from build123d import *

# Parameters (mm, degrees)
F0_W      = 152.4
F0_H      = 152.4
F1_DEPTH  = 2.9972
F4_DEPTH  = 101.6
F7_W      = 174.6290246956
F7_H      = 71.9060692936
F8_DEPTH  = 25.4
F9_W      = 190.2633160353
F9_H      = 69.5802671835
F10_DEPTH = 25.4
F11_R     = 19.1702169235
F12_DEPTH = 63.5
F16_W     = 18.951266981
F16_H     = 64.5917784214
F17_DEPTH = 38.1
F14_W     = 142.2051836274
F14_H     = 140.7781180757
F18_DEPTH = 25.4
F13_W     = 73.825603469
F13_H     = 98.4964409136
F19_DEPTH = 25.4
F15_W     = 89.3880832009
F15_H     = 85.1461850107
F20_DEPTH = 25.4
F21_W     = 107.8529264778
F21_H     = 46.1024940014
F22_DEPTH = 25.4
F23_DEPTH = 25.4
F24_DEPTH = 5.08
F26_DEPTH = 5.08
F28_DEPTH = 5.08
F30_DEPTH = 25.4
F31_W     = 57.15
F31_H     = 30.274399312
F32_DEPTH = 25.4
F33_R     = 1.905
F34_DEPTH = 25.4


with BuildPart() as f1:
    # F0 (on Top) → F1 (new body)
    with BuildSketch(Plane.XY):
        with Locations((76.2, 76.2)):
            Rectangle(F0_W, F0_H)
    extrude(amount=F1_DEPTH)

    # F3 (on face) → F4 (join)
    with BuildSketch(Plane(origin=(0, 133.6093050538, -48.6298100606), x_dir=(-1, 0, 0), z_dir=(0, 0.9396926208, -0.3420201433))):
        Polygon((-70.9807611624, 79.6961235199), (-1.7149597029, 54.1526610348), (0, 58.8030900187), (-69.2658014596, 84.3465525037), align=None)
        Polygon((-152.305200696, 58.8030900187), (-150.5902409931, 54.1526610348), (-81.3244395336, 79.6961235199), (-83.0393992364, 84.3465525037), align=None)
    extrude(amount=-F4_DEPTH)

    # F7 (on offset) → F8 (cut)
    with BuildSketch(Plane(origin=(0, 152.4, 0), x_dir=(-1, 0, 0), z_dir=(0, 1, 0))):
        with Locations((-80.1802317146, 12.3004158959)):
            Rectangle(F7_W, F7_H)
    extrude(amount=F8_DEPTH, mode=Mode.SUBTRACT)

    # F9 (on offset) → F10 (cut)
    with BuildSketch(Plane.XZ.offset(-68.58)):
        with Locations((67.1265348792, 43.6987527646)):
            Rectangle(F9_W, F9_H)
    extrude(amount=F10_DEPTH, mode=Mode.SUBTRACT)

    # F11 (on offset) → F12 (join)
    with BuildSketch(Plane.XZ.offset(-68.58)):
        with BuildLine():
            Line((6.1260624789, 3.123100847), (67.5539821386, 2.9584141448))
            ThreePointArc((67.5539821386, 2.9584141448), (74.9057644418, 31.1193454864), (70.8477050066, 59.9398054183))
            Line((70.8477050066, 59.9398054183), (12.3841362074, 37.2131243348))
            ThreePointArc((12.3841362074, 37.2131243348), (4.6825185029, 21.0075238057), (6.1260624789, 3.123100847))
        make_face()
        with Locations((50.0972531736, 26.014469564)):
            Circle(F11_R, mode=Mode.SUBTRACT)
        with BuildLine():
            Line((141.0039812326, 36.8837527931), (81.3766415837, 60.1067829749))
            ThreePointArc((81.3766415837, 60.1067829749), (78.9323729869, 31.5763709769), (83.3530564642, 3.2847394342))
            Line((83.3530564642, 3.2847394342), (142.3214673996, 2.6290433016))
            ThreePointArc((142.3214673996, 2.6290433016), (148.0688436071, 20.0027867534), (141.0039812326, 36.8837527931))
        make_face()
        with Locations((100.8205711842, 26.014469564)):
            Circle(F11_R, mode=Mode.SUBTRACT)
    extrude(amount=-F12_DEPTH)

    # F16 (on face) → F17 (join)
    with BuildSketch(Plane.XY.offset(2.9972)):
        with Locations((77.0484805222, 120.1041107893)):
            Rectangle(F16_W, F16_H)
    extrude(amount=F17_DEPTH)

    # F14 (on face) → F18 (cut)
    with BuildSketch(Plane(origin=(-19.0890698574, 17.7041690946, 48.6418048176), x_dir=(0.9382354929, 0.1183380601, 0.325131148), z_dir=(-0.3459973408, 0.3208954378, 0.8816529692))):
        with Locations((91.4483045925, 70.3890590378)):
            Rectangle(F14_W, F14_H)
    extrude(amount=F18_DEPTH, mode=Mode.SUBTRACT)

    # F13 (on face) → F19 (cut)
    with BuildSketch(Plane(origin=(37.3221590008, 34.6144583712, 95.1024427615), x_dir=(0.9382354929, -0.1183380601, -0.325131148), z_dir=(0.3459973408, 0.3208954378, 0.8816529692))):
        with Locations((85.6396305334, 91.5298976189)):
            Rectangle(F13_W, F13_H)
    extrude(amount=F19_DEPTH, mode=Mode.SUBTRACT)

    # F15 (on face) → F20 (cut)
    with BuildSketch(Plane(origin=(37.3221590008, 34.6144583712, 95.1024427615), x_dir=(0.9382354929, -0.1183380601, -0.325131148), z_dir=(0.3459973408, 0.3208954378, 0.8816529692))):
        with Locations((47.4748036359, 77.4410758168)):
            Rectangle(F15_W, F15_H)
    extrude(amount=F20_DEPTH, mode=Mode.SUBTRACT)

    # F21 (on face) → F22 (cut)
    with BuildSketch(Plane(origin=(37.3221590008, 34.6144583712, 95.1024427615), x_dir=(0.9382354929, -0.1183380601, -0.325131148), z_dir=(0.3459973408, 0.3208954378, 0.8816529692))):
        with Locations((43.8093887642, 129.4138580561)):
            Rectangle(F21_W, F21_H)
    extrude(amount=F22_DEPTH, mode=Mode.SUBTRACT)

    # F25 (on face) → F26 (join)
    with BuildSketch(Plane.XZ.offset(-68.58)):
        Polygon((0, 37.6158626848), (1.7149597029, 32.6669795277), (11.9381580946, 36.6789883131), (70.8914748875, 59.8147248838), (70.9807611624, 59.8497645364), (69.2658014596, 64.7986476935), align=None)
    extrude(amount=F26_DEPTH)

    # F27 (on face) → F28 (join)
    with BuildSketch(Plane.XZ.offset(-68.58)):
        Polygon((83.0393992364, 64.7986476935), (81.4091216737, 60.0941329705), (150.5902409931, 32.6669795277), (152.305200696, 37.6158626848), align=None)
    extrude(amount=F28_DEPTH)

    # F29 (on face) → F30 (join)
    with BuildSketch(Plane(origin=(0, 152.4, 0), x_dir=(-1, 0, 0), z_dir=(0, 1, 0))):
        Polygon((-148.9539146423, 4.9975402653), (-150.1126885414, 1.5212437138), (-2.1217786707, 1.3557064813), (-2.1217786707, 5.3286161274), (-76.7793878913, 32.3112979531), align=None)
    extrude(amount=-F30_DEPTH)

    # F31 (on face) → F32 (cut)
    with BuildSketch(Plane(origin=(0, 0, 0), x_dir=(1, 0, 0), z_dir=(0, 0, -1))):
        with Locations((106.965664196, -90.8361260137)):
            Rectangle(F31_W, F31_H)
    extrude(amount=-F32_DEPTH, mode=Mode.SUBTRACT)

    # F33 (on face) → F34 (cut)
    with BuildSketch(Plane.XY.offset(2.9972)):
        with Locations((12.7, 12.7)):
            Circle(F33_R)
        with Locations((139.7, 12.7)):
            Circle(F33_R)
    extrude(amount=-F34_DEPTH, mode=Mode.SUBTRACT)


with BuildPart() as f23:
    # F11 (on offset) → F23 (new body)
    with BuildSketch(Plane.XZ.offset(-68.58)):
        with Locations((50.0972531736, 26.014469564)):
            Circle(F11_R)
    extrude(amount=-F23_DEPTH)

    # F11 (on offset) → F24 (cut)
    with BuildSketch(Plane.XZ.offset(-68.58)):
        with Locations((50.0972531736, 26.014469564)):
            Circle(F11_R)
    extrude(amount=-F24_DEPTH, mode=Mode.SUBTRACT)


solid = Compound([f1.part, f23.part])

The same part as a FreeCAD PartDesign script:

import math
import FreeCAD as App
import Part
import Sketcher
Q = App.Units.Quantity

doc = App.newDocument("Part")
body = doc.addObject("PartDesign::Body", "Body")

sketch1 = body.newObject("Sketcher::SketchObject", "Sketch")
sketch1.AttachmentSupport = (doc.getObject("XY_Plane"), [""])
sketch1.MapMode = "FlatFace"
sketch1.addGeometry([
    Part.LineSegment(App.Vector(0, 152, 0), App.Vector(0, 0, 0)),
    Part.LineSegment(App.Vector(0, 0, 0), App.Vector(152, 0, 0)),
    Part.LineSegment(App.Vector(152, 0, 0), App.Vector(152, 152, 0)),
    Part.LineSegment(App.Vector(152, 152, 0), App.Vector(0, 152, 0)),
], False)
sketch1.addConstraint([
    Sketcher.Constraint("Coincident", 0, 2, 1, 1),
    Sketcher.Constraint("Coincident", 1, 2, 2, 1),
    Sketcher.Constraint("Coincident", 2, 2, 3, 1),
    Sketcher.Constraint("Coincident", 3, 2, 0, 1),
    Sketcher.Constraint("Vertical", 0),
    Sketcher.Constraint("Horizontal", 1),
    Sketcher.Constraint("Vertical", 2),
    Sketcher.Constraint("Horizontal", 3),
    Sketcher.Constraint("Coincident", 0, 2, -1, 1),
    Sketcher.Constraint("Equal", 3, 0),
    Sketcher.Constraint("DistanceX", 1, 1, 1, 2, Q("6 in")),
])
pad1 = body.newObject("PartDesign::Pad", "Pad")
pad1.Profile = sketch1
pad1.Length = Q("0.118 in")

sketch2 = body.newObject("Sketcher::SketchObject", "Sketch001")
sketch2.Placement = App.Placement(App.Vector(0, 133.609305, -48.62981), App.Rotation(App.Vector(-1, 0, 0), App.Vector(0, 0.342020143, 0.939692621), App.Vector(0, 0.939692621, -0.342020143), "ZXY"))
sketch2.addGeometry([
    Part.LineSegment(App.Vector(-71, 79.7, 0), App.Vector(-1.7, 54.2, 0)),
    Part.LineSegment(App.Vector(-1.7, 54.2, 0), App.Vector(0, 58.8, 0)),
    Part.LineSegment(App.Vector(0, 58.8, 0), App.Vector(-69.3, 84.3, 0)),
    Part.LineSegment(App.Vector(-69.3, 84.3, 0), App.Vector(-71, 79.7, 0)),
    Part.LineSegment(App.Vector(-152.3, 58.8, 0), App.Vector(-150.6, 54.2, 0)),
    Part.LineSegment(App.Vector(-150.6, 54.2, 0), App.Vector(-81.3, 79.7, 0)),
    Part.LineSegment(App.Vector(-81.3, 79.7, 0), App.Vector(-83, 84.3, 0)),
    Part.LineSegment(App.Vector(-83, 84.3, 0), App.Vector(-152.3, 58.8, 0)),
], False)
sketch2.addConstraint([
    Sketcher.Constraint("Coincident", 0, 2, 1, 1),
    Sketcher.Constraint("Coincident", 1, 2, 2, 1),
    Sketcher.Constraint("Coincident", 2, 2, 3, 1),
    Sketcher.Constraint("Coincident", 3, 2, 0, 1),
    Sketcher.Constraint("Coincident", 4, 2, 5, 1),
    Sketcher.Constraint("Coincident", 5, 2, 6, 1),
    Sketcher.Constraint("Coincident", 6, 2, 7, 1),
    Sketcher.Constraint("Coincident", 7, 2, 4, 1),
    Sketcher.Constraint("PointOnObject", 1, 2, -2),
    Sketcher.Constraint("Perpendicular", 0, 1),
    Sketcher.Constraint("Perpendicular", 1, 2),
    Sketcher.Constraint("Perpendicular", 2, 3),
    Sketcher.Constraint("Perpendicular", 4, 5),
    Sketcher.Constraint("Perpendicular", 5, 6),
    Sketcher.Constraint("Perpendicular", 6, 7),
    Sketcher.Constraint("Horizontal", 0, 2, 4, 2),
    Sketcher.Constraint("Horizontal", 3, 2, 5, 2),
    Sketcher.Constraint("Horizontal", 2, 2, 6, 2),
    Sketcher.Constraint("Equal", 3, 4),
    Sketcher.Constraint("DistanceX", 2, 2, -1, 1, Q("2.7270001 in")),
    Sketcher.Constraint("DistanceX", 6, 2, -1, 1, 83.039399),
    Sketcher.Constraint("Distance", 1, 4.956569),
    Sketcher.Constraint("DistanceX", 0, 2, -1, 1, 1.71496),
    Sketcher.Constraint("DistanceY", -1, 1, 0, 2, 54.152661),
])
pad2 = body.newObject("PartDesign::Pad", "Pad001")
pad2.Profile = sketch2
pad2.Length = Q("4 in")
pad2.Reversed = True

sketch3 = body.newObject("Sketcher::SketchObject", "Sketch002")
sketch3.AttachmentSupport = (doc.getObject("XZ_Plane"), [""])
sketch3.MapMode = "FlatFace"
sketch3.AttachmentOffset = App.Placement(App.Vector(0, 0, -6 * 25.4), App.Rotation())
sketch3.addGeometry([
    Part.LineSegment(App.Vector(167, 48, 0), App.Vector(167, -24, 0)),
    Part.LineSegment(App.Vector(167, -24, 0), App.Vector(-7, -24, 0)),
    Part.LineSegment(App.Vector(-7, -24, 0), App.Vector(-7, 48, 0)),
    Part.LineSegment(App.Vector(-7, 48, 0), App.Vector(167, 48, 0)),
], False)
sketch3.addConstraint([
    Sketcher.Constraint("Coincident", 0, 2, 1, 1),
    Sketcher.Constraint("Coincident", 1, 2, 2, 1),
    Sketcher.Constraint("Coincident", 2, 2, 3, 1),
    Sketcher.Constraint("Coincident", 3, 2, 0, 1),
    Sketcher.Constraint("Vertical", 0),
    Sketcher.Constraint("Horizontal", 1),
    Sketcher.Constraint("Vertical", 2),
    Sketcher.Constraint("Horizontal", 3),
    Sketcher.Constraint("DistanceY", 0, 2, 0, 1, 71.906069),
    Sketcher.Constraint("DistanceX", 1, 2, 1, 1, 174.629025),
    Sketcher.Constraint("DistanceY", 0, 2, -1, 1, 23.652619),
    Sketcher.Constraint("DistanceX", 1, 2, -1, 1, 7.134281),
])
pocket1 = body.newObject("PartDesign::Pocket", "Pocket")
pocket1.Profile = sketch3
pocket1.Length = Q("1 in")

sketch4 = body.newObject("Sketcher::SketchObject", "Sketch003")
sketch4.AttachmentSupport = (doc.getObject("XZ_Plane"), [""])
sketch4.MapMode = "FlatFace"
sketch4.AttachmentOffset = App.Placement(App.Vector(0, 0, -2.7 * 25.4), App.Rotation())
sketch4.addGeometry([
    Part.LineSegment(App.Vector(-28, 78, 0), App.Vector(-28, 9, 0)),
    Part.LineSegment(App.Vector(-28, 9, 0), App.Vector(162, 9, 0)),
    Part.LineSegment(App.Vector(162, 9, 0), App.Vector(162, 78, 0)),
    Part.LineSegment(App.Vector(162, 78, 0), App.Vector(-28, 78, 0)),
], False)
sketch4.addConstraint([
    Sketcher.Constraint("Coincident", 0, 2, 1, 1),
    Sketcher.Constraint("Coincident", 1, 2, 2, 1),
    Sketcher.Constraint("Coincident", 2, 2, 3, 1),
    Sketcher.Constraint("Coincident", 3, 2, 0, 1),
    Sketcher.Constraint("Vertical", 0),
    Sketcher.Constraint("Horizontal", 1),
    Sketcher.Constraint("Vertical", 2),
    Sketcher.Constraint("Horizontal", 3),
    Sketcher.Constraint("DistanceX", 1, 1, 1, 2, 190.263316),
    Sketcher.Constraint("DistanceY", 0, 2, 0, 1, 69.580267),
    Sketcher.Constraint("DistanceY", -1, 1, 0, 2, 8.908619),
    Sketcher.Constraint("DistanceX", 0, 2, -1, 1, 28.005123),
])
pocket2 = body.newObject("PartDesign::Pocket", "Pocket001")
pocket2.Profile = sketch4
pocket2.Length = Q("1 in")
pocket2.Reversed = True

sketch5 = body.newObject("Sketcher::SketchObject", "Sketch004")
sketch5.AttachmentSupport = (doc.getObject("XZ_Plane"), [""])
sketch5.MapMode = "FlatFace"
sketch5.AttachmentOffset = App.Placement(App.Vector(0, 0, -2.7 * 25.4), App.Rotation())
sketch5.addGeometry([
    Part.LineSegment(App.Vector(6, 3, 0), App.Vector(68, 3, 0)),
    Part.ArcOfCircle(Part.Circle(App.Vector(1, 35, 0), App.Vector(0, 0, 1), 74), math.radians(-26), math.radians(19)),
    Part.LineSegment(App.Vector(71, 60, 0), App.Vector(12, 37, 0)),
    Part.ArcOfCircle(Part.Circle(App.Vector(39, 15, 0), App.Vector(0, 0, 1), 35), math.radians(140), math.radians(200)),
    Part.Circle(App.Vector(50, 26, 0), App.Vector(0, 0, 1), 19),
    Part.LineSegment(App.Vector(141, 37, 0), App.Vector(81, 60, 0)),
    Part.ArcOfCircle(Part.Circle(App.Vector(198, 36, 0), App.Vector(0, 0, 1), 119), math.radians(168), math.radians(196)),
    Part.LineSegment(App.Vector(83, 3, 0), App.Vector(142, 3, 0)),
    Part.ArcOfCircle(Part.Circle(App.Vector(122, 19, 0), App.Vector(0, 0, 1), 26), math.radians(-39), math.radians(43)),
    Part.Circle(App.Vector(101, 26, 0), App.Vector(0, 0, 1), 19),
], False)
sketch5.addConstraint([
    Sketcher.Constraint("Coincident", 0, 2, 1, 1),
    Sketcher.Constraint("Coincident", 1, 2, 2, 1),
    Sketcher.Constraint("Coincident", 2, 2, 3, 1),
    Sketcher.Constraint("Coincident", 3, 2, 0, 1),
    Sketcher.Constraint("Coincident", 5, 2, 6, 1),
    Sketcher.Constraint("Coincident", 6, 2, 7, 1),
    Sketcher.Constraint("Coincident", 7, 2, 8, 1),
    Sketcher.Constraint("Coincident", 8, 2, 5, 1),
    Sketcher.Constraint("Equal", 4, 9),
    Sketcher.Constraint("Horizontal", 4, 3, 9, 3),
    Sketcher.Constraint("Radius", 3, 34.624339),
    Sketcher.Constraint("Diameter", 4, 38.340434),
    Sketcher.Constraint("Radius", 1, 74.118042),
    Sketcher.Constraint("Radius", 6, 119.369122),
    Sketcher.Constraint("Radius", 8, 26.118143),
    Sketcher.Constraint("DistanceY", 8, 3, 4, 3, Q("0.2762001 in")),
    Sketcher.Constraint("DistanceY", -1, 1, 3, 2, 3.123101),
    Sketcher.Constraint("DistanceX", 4, 3, 6, 3, 148.1321),
    Sketcher.Constraint("DistanceY", 8, 3, 1, 3, 16.3975),
    Sketcher.Constraint("DistanceX", 1, 3, 2, 2, 11.4729),
    Sketcher.Constraint("Distance", 0, 61.42814),
    Sketcher.Constraint("Distance", 2, 62.72552),
    Sketcher.Constraint("DistanceY", -1, 1, 3, 3, 14.755831),
    Sketcher.Constraint("DistanceY", -1, 1, 4, 3, 26.01447),
    Sketcher.Constraint("DistanceX", -1, 1, 9, 3, 100.820571),
    Sketcher.Constraint("DistanceX", -1, 1, 5, 2, 81.376642),
    Sketcher.Constraint("DistanceY", -1, 1, 6, 2, 3.284739),
    Sketcher.Constraint("DistanceX", -1, 1, 8, 2, 141.003981),
    Sketcher.Constraint("DistanceX", 1, 3, 3, 3, 37.826549),
    Sketcher.Constraint("DistanceX", 1, 3, 8, 3, 121.058761),
    Sketcher.Constraint("DistanceX", 4, 3, 9, 3, 50.723318),
    Sketcher.Constraint("DistanceX", 4, 3, 0, 2, 17.456729),
    Sketcher.Constraint("DistanceY", 0, 2, 5, 2, 57.148369),
    Sketcher.Constraint("DistanceX", 8, 3, 7, 2, 20.35147),
])
pad3 = body.newObject("PartDesign::Pad", "Pad002")
pad3.Profile = sketch5
pad3.Length = Q("2.5 in")
pad3.Reversed = True

sketch6 = body.newObject("Sketcher::SketchObject", "Sketch005")
sketch6.AttachmentSupport = (doc.getObject("XY_Plane"), [""])
sketch6.MapMode = "FlatFace"
sketch6.AttachmentOffset = App.Placement(App.Vector(0, 0, 0.118 * 25.4), App.Rotation())
sketch6.addGeometry([
    Part.LineSegment(App.Vector(68, 152, 0), App.Vector(68, 88, 0)),
    Part.LineSegment(App.Vector(68, 88, 0), App.Vector(87, 88, 0)),
    Part.LineSegment(App.Vector(87, 88, 0), App.Vector(87, 152, 0)),
    Part.LineSegment(App.Vector(87, 152, 0), App.Vector(68, 152, 0)),
], False)
sketch6.addConstraint([
    Sketcher.Constraint("Coincident", 0, 2, 1, 1),
    Sketcher.Constraint("Coincident", 1, 2, 2, 1),
    Sketcher.Constraint("Coincident", 2, 2, 3, 1),
    Sketcher.Constraint("Coincident", 3, 2, 0, 1),
    Sketcher.Constraint("Vertical", 0),
    Sketcher.Constraint("Horizontal", 1),
    Sketcher.Constraint("Vertical", 2),
    Sketcher.Constraint("Horizontal", 3),
    Sketcher.Constraint("DistanceY", -1, 1, 2, 2, Q("6 in")),
    Sketcher.Constraint("DistanceY", 0, 2, 0, 1, 64.591778),
    Sketcher.Constraint("DistanceX", 1, 1, 1, 2, 18.951267),
    Sketcher.Constraint("DistanceX", -1, 1, 0, 2, 67.572847),
])
pad4 = body.newObject("PartDesign::Pad", "Pad003")
pad4.Profile = sketch6
pad4.Length = Q("1.5 in")

sketch7 = body.newObject("Sketcher::SketchObject", "Sketch006")
sketch7.Placement = App.Placement(App.Vector(-19.08907, 17.704169, 48.641805), App.Rotation(App.Vector(0.938235493, 0.11833806, 0.325131148), App.Vector(0, 0.939692621, -0.342020144), App.Vector(-0.345997341, 0.320895438, 0.881652969), "ZXY"))
sketch7.addGeometry([
    Part.LineSegment(App.Vector(20, 141, 0), App.Vector(20, 0, 0)),
    Part.LineSegment(App.Vector(20, 0, 0), App.Vector(163, 0, 0)),
    Part.LineSegment(App.Vector(163, 0, 0), App.Vector(163, 141, 0)),
    Part.LineSegment(App.Vector(163, 141, 0), App.Vector(20, 141, 0)),
], False)
sketch7.addConstraint([
    Sketcher.Constraint("Coincident", 0, 2, 1, 1),
    Sketcher.Constraint("Coincident", 1, 2, 2, 1),
    Sketcher.Constraint("Coincident", 2, 2, 3, 1),
    Sketcher.Constraint("Coincident", 3, 2, 0, 1),
    Sketcher.Constraint("Vertical", 0),
    Sketcher.Constraint("Horizontal", 1),
    Sketcher.Constraint("Vertical", 2),
    Sketcher.Constraint("Horizontal", 3),
    Sketcher.Constraint("PointOnObject", 0, 2, -1),
    Sketcher.Constraint("DistanceY", 0, 2, 0, 1, 140.778118),
    Sketcher.Constraint("DistanceX", 1, 1, 1, 2, 142.205184),
    Sketcher.Constraint("DistanceX", -1, 1, 0, 2, 20.345713),
])
pocket3 = body.newObject("PartDesign::Pocket", "Pocket002")
pocket3.Profile = sketch7
pocket3.Length = Q("1 in")
pocket3.Reversed = True

sketch8 = body.newObject("Sketcher::SketchObject", "Sketch007")
sketch8.Placement = App.Placement(App.Vector(37.322159, 34.614458, 95.102443), App.Rotation(App.Vector(0.938235493, -0.11833806, -0.325131148), App.Vector(0, 0.939692621, -0.342020144), App.Vector(0.345997341, 0.320895438, 0.881652969), "ZXY"))
sketch8.addGeometry([
    Part.LineSegment(App.Vector(49, 141, 0), App.Vector(49, 42, 0)),
    Part.LineSegment(App.Vector(49, 42, 0), App.Vector(123, 42, 0)),
    Part.LineSegment(App.Vector(123, 42, 0), App.Vector(123, 141, 0)),
    Part.LineSegment(App.Vector(123, 141, 0), App.Vector(49, 141, 0)),
], False)
sketch8.addConstraint([
    Sketcher.Constraint("Coincident", 0, 2, 1, 1),
    Sketcher.Constraint("Coincident", 1, 2, 2, 1),
    Sketcher.Constraint("Coincident", 2, 2, 3, 1),
    Sketcher.Constraint("Coincident", 3, 2, 0, 1),
    Sketcher.Constraint("Vertical", 0),
    Sketcher.Constraint("Horizontal", 1),
    Sketcher.Constraint("Vertical", 2),
    Sketcher.Constraint("Horizontal", 3),
    Sketcher.Constraint("DistanceY", 0, 2, 0, 1, 98.496441),
    Sketcher.Constraint("DistanceX", 1, 1, 1, 2, 73.825603),
    Sketcher.Constraint("DistanceX", -1, 1, 0, 2, 48.726829),
    Sketcher.Constraint("DistanceY", -1, 1, 2, 2, 140.778118),
])
pocket4 = body.newObject("PartDesign::Pocket", "Pocket003")
pocket4.Profile = sketch8
pocket4.Length = Q("1 in")
pocket4.Reversed = True

sketch9 = body.newObject("Sketcher::SketchObject", "Sketch008")
sketch9.Placement = App.Placement(App.Vector(37.322159, 34.614458, 95.102443), App.Rotation(App.Vector(0.938235493, -0.11833806, -0.325131148), App.Vector(0, 0.939692621, -0.342020144), App.Vector(0.345997341, 0.320895438, 0.881652969), "ZXY"))
sketch9.addGeometry([
    Part.LineSegment(App.Vector(3, 120, 0), App.Vector(3, 35, 0)),
    Part.LineSegment(App.Vector(3, 35, 0), App.Vector(92, 35, 0)),
    Part.LineSegment(App.Vector(92, 35, 0), App.Vector(92, 120, 0)),
    Part.LineSegment(App.Vector(92, 120, 0), App.Vector(3, 120, 0)),
], False)
sketch9.addConstraint([
    Sketcher.Constraint("Coincident", 0, 2, 1, 1),
    Sketcher.Constraint("Coincident", 1, 2, 2, 1),
    Sketcher.Constraint("Coincident", 2, 2, 3, 1),
    Sketcher.Constraint("Coincident", 3, 2, 0, 1),
    Sketcher.Constraint("Vertical", 0),
    Sketcher.Constraint("Horizontal", 1),
    Sketcher.Constraint("Vertical", 2),
    Sketcher.Constraint("Horizontal", 3),
    Sketcher.Constraint("DistanceX", 1, 1, 1, 2, 89.388083),
    Sketcher.Constraint("DistanceY", 0, 2, 0, 1, 85.146185),
    Sketcher.Constraint("DistanceY", -1, 1, 2, 2, 120.014168),
    Sketcher.Constraint("DistanceX", -1, 1, 0, 2, 2.780762),
])
pocket5 = body.newObject("PartDesign::Pocket", "Pocket004")
pocket5.Profile = sketch9
pocket5.Length = Q("1 in")
pocket5.Reversed = True

sketch10 = body.newObject("Sketcher::SketchObject", "Sketch009")
sketch10.Placement = App.Placement(App.Vector(37.322159, 34.614458, 95.102443), App.Rotation(App.Vector(0.938235493, -0.11833806, -0.325131148), App.Vector(0, 0.939692621, -0.342020144), App.Vector(0.345997341, 0.320895438, 0.881652969), "ZXY"))
sketch10.addGeometry([
    Part.LineSegment(App.Vector(-10, 152, 0), App.Vector(-10, 106, 0)),
    Part.LineSegment(App.Vector(-10, 106, 0), App.Vector(98, 106, 0)),
    Part.LineSegment(App.Vector(98, 106, 0), App.Vector(98, 152, 0)),
    Part.LineSegment(App.Vector(98, 152, 0), App.Vector(-10, 152, 0)),
], False)
sketch10.addConstraint([
    Sketcher.Constraint("Coincident", 0, 2, 1, 1),
    Sketcher.Constraint("Coincident", 1, 2, 2, 1),
    Sketcher.Constraint("Coincident", 2, 2, 3, 1),
    Sketcher.Constraint("Coincident", 3, 2, 0, 1),
    Sketcher.Constraint("Vertical", 0),
    Sketcher.Constraint("Horizontal", 1),
    Sketcher.Constraint("Vertical", 2),
    Sketcher.Constraint("Horizontal", 3),
    Sketcher.Constraint("DistanceX", 1, 1, 1, 2, 107.852926),
    Sketcher.Constraint("DistanceY", 0, 2, 0, 1, 46.102494),
    Sketcher.Constraint("DistanceY", -1, 1, 0, 2, 106.362611),
    Sketcher.Constraint("DistanceX", 0, 2, -1, 1, 10.117074),
])
pocket6 = body.newObject("PartDesign::Pocket", "Pocket005")
pocket6.Profile = sketch10
pocket6.Length = Q("1 in")
pocket6.Reversed = True

sketch11 = body.newObject("Sketcher::SketchObject", "Sketch010")
sketch11.AttachmentSupport = (doc.getObject("XZ_Plane"), [""])
sketch11.MapMode = "FlatFace"
sketch11.AttachmentOffset = App.Placement(App.Vector(0, 0, -2.7 * 25.4), App.Rotation())
sketch11.addGeometry([
    Part.LineSegment(App.Vector(0, 37.62, 0), App.Vector(1.71, 32.67, 0)),
    Part.LineSegment(App.Vector(1.71, 32.67, 0), App.Vector(11.94, 36.68, 0)),
    Part.LineSegment(App.Vector(11.94, 36.68, 0), App.Vector(70.89, 59.81, 0)),
    Part.LineSegment(App.Vector(70.89, 59.81, 0), App.Vector(70.98, 59.85, 0)),
    Part.LineSegment(App.Vector(70.98, 59.85, 0), App.Vector(69.27, 64.8, 0)),
    Part.LineSegment(App.Vector(69.27, 64.8, 0), App.Vector(0, 37.62, 0)),
], False)
sketch11.addConstraint([
    Sketcher.Constraint("Coincident", 0, 2, 1, 1),
    Sketcher.Constraint("Coincident", 1, 2, 2, 1),
    Sketcher.Constraint("Coincident", 2, 2, 3, 1),
    Sketcher.Constraint("Coincident", 3, 2, 4, 1),
    Sketcher.Constraint("Coincident", 4, 2, 5, 1),
    Sketcher.Constraint("Coincident", 5, 2, 0, 1),
    Sketcher.Constraint("PointOnObject", 5, 2, -2),
    Sketcher.Constraint("Parallel", 1, 2),
    Sketcher.Constraint("Parallel", 2, 3),
    Sketcher.Constraint("Parallel", 0, 4),
    Sketcher.Constraint("Parallel", 2, 5),
    Sketcher.Constraint("DistanceX", -1, 1, 4, 2, Q("2.7270001 in")),
    Sketcher.Constraint("DistanceX", 0, 2, 1, 2, 10.223198),
    Sketcher.Constraint("DistanceY", 5, 2, 3, 2, 22.233902),
    Sketcher.Constraint("Distance", 1, 10.982258),
    Sketcher.Constraint("Distance", 2, 63.330529),
    Sketcher.Constraint("DistanceX", -1, 1, 0, 2, 1.71496),
    Sketcher.Constraint("DistanceY", -1, 1, 0, 2, 32.66698),
])
pad5 = body.newObject("PartDesign::Pad", "Pad004")
pad5.Profile = sketch11
pad5.Length = Q("0.2 in")

sketch12 = body.newObject("Sketcher::SketchObject", "Sketch011")
sketch12.AttachmentSupport = (doc.getObject("XZ_Plane"), [""])
sketch12.MapMode = "FlatFace"
sketch12.AttachmentOffset = App.Placement(App.Vector(0, 0, -2.7 * 25.4), App.Rotation())
sketch12.addGeometry([
    Part.LineSegment(App.Vector(83, 64.8, 0), App.Vector(81.4, 60.1, 0)),
    Part.LineSegment(App.Vector(81.4, 60.1, 0), App.Vector(150.6, 32.7, 0)),
    Part.LineSegment(App.Vector(150.6, 32.7, 0), App.Vector(152.3, 37.6, 0)),
    Part.LineSegment(App.Vector(152.3, 37.6, 0), App.Vector(83, 64.8, 0)),
], False)
sketch12.addConstraint([
    Sketcher.Constraint("Coincident", 0, 2, 1, 1),
    Sketcher.Constraint("Coincident", 1, 2, 2, 1),
    Sketcher.Constraint("Coincident", 2, 2, 3, 1),
    Sketcher.Constraint("Coincident", 3, 2, 0, 1),
    Sketcher.Constraint("Parallel", 0, 2),
    Sketcher.Constraint("DistanceX", 3, 2, 2, 2, Q("2.7270001 in")),
    Sketcher.Constraint("DistanceX", -1, 1, 2, 2, 152.305201),
    Sketcher.Constraint("DistanceX", -1, 1, 0, 2, 81.409122),
    Sketcher.Constraint("DistanceX", -1, 1, 1, 2, 150.590241),
    Sketcher.Constraint("DistanceY", -1, 1, 1, 2, 32.66698),
    Sketcher.Constraint("DistanceY", 2, 2, 0, 2, 22.47827),
    Sketcher.Constraint("DistanceY", 1, 2, 3, 2, 32.131668),
])
pad6 = body.newObject("PartDesign::Pad", "Pad005")
pad6.Profile = sketch12
pad6.Length = Q("0.2 in")

sketch13 = body.newObject("Sketcher::SketchObject", "Sketch012")
sketch13.AttachmentSupport = (doc.getObject("XZ_Plane"), [""])
sketch13.MapMode = "FlatFace"
sketch13.AttachmentOffset = App.Placement(App.Vector(0, 0, -6 * 25.4), App.Rotation())
sketch13.addGeometry([
    Part.LineSegment(App.Vector(149, 5, 0), App.Vector(150.1, 1.5, 0)),
    Part.LineSegment(App.Vector(150.1, 1.5, 0), App.Vector(2.1, 1.4, 0)),
    Part.LineSegment(App.Vector(2.1, 1.4, 0), App.Vector(2.1, 5.3, 0)),
    Part.LineSegment(App.Vector(2.1, 5.3, 0), App.Vector(76.8, 32.3, 0)),
    Part.LineSegment(App.Vector(76.8, 32.3, 0), App.Vector(149, 5, 0)),
], False)
sketch13.addConstraint([
    Sketcher.Constraint("Coincident", 0, 2, 1, 1),
    Sketcher.Constraint("Coincident", 1, 2, 2, 1),
    Sketcher.Constraint("Coincident", 2, 2, 3, 1),
    Sketcher.Constraint("Coincident", 3, 2, 4, 1),
    Sketcher.Constraint("Coincident", 4, 2, 0, 1),
    Sketcher.Constraint("Vertical", 2),
    Sketcher.Constraint("DistanceY", 2, 1, 2, 2, 3.97291),
    Sketcher.Constraint("DistanceX", 3, 2, 0, 2, 73.333301),
    Sketcher.Constraint("Distance", 0, 3.664341),
    Sketcher.Constraint("DistanceX", -1, 1, 0, 2, 150.112689),
    Sketcher.Constraint("DistanceX", -1, 1, 1, 2, 2.121779),
    Sketcher.Constraint("DistanceY", -1, 1, 4, 2, 4.99754),
    Sketcher.Constraint("DistanceY", 2, 2, 3, 2, 26.982682),
    Sketcher.Constraint("Distance", 4, 77.169966),
    Sketcher.Constraint("DistanceY", -1, 1, 0, 2, 1.521244),
])
pad7 = body.newObject("PartDesign::Pad", "Pad006")
pad7.Profile = sketch13
pad7.Length = Q("1 in")

sketch14 = body.newObject("Sketcher::SketchObject", "Sketch013")
sketch14.AttachmentSupport = (doc.getObject("XY_Plane"), [""])
sketch14.MapMode = "FlatFace"
sketch14.addGeometry([
    Part.LineSegment(App.Vector(78, 76, 0), App.Vector(78, 106, 0)),
    Part.LineSegment(App.Vector(78, 106, 0), App.Vector(136, 106, 0)),
    Part.LineSegment(App.Vector(136, 106, 0), App.Vector(136, 76, 0)),
    Part.LineSegment(App.Vector(136, 76, 0), App.Vector(78, 76, 0)),
], False)
sketch14.addConstraint([
    Sketcher.Constraint("Coincident", 0, 2, 1, 1),
    Sketcher.Constraint("Coincident", 1, 2, 2, 1),
    Sketcher.Constraint("Coincident", 2, 2, 3, 1),
    Sketcher.Constraint("Coincident", 3, 2, 0, 1),
    Sketcher.Constraint("Vertical", 0),
    Sketcher.Constraint("Horizontal", 1),
    Sketcher.Constraint("Vertical", 2),
    Sketcher.Constraint("Horizontal", 3),
    Sketcher.Constraint("DistanceX", 1, 1, 1, 2, Q("2.25 in")),
    Sketcher.Constraint("DistanceY", 0, 1, 0, 2, 30.274399),
    Sketcher.Constraint("DistanceX", -1, 1, 0, 2, 78.390664),
    Sketcher.Constraint("DistanceY", -1, 1, 0, 2, 105.973326),
])
pocket7 = body.newObject("PartDesign::Pocket", "Pocket006")
pocket7.Profile = sketch14
pocket7.Length = Q("1 in")
pocket7.Reversed = True

sketch15 = body.newObject("Sketcher::SketchObject", "Sketch014")
sketch15.AttachmentSupport = (doc.getObject("XY_Plane"), [""])
sketch15.MapMode = "FlatFace"
sketch15.AttachmentOffset = App.Placement(App.Vector(0, 0, 0.118 * 25.4), App.Rotation())
sketch15.addGeometry([
    Part.Circle(App.Vector(12.7, 12.7, 0), App.Vector(0, 0, 1), 1.9),
    Part.Circle(App.Vector(139.7, 12.7, 0), App.Vector(0, 0, 1), 1.9),
], False)
sketch15.addConstraint([
    Sketcher.Constraint("Equal", 0, 1),
    Sketcher.Constraint("Horizontal", 0, 3, 1, 3),
    Sketcher.Constraint("Diameter", 0, Q("0.15 in")),
    Sketcher.Constraint("DistanceX", 0, 3, 1, 3, Q("5 in")),
    Sketcher.Constraint("DistanceX", -1, 1, 0, 3, Q("0.5 in")),
    Sketcher.Constraint("DistanceY", -1, 1, 0, 3, Q("0.5 in")),
])
pocket8 = body.newObject("PartDesign::Pocket", "Pocket007")
pocket8.Profile = sketch15
pocket8.Length = Q("1 in")
body2 = doc.addObject("PartDesign::Body", "Body001")

sketch16 = body2.newObject("Sketcher::SketchObject", "Sketch015")
sketch16.AttachmentSupport = (doc.getObject("XZ_Plane001"), [""])
sketch16.MapMode = "FlatFace"
sketch16.AttachmentOffset = App.Placement(App.Vector(0, 0, -2.7 * 25.4), App.Rotation())
sketch16.addGeometry(Part.Circle(App.Vector(50, 26, 0), App.Vector(0, 0, 1), 19), False)
sketch16.addConstraint([
    Sketcher.Constraint("Diameter", 0, 38.340434),
    Sketcher.Constraint("DistanceY", -1, 1, 0, 3, 26.01447),
    Sketcher.Constraint("DistanceX", -1, 1, 0, 3, 50.097253),
])
pad8 = body2.newObject("PartDesign::Pad", "Pad007")
pad8.Profile = sketch16
pad8.Length = Q("1 in")
pad8.Reversed = True

sketch17 = body2.newObject("Sketcher::SketchObject", "Sketch016")
sketch17.AttachmentSupport = (doc.getObject("XZ_Plane001"), [""])
sketch17.MapMode = "FlatFace"
sketch17.AttachmentOffset = App.Placement(App.Vector(0, 0, -2.7 * 25.4), App.Rotation())
sketch17.addGeometry(Part.Circle(App.Vector(50, 26, 0), App.Vector(0, 0, 1), 19), False)
sketch17.addConstraint([
    Sketcher.Constraint("Diameter", 0, 38.340434),
    Sketcher.Constraint("DistanceY", -1, 1, 0, 3, 26.01447),
    Sketcher.Constraint("DistanceX", -1, 1, 0, 3, 50.097253),
])
pocket9 = body2.newObject("PartDesign::Pocket", "Pocket008")
pocket9.Profile = sketch17
pocket9.Length = Q("0.2 in")

doc.recompute()
